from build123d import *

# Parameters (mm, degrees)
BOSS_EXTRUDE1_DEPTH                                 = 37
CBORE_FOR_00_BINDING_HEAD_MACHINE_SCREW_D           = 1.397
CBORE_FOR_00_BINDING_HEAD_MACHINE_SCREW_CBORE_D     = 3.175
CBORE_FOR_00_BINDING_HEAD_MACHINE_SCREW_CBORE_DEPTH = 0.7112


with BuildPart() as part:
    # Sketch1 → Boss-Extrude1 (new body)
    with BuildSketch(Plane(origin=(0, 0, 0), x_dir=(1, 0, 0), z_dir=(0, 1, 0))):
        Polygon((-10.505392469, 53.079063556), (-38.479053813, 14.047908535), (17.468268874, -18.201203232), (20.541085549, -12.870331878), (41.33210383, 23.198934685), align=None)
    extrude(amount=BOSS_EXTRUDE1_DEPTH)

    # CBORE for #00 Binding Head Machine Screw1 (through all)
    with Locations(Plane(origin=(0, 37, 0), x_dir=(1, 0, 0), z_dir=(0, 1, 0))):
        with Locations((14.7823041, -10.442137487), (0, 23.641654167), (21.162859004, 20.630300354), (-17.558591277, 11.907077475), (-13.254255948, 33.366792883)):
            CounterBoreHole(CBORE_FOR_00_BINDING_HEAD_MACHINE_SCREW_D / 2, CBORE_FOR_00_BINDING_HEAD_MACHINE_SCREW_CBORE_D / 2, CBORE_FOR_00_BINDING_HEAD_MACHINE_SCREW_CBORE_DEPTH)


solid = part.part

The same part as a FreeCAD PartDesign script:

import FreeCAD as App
import Part
import Sketcher
from FreeCAD import Vector

doc = App.newDocument("Part")
params = doc.addObject("Spreadsheet::Sheet", "Params")
for row, (alias, value) in enumerate([
    ("pad1_length", "37 mm"),
    ("hole_diameter", "1.397 mm"),
    ("hole_cbore_diameter", "3.175 mm"),
    ("hole_cbore_depth", "0.7112 mm"),
], start=1):
    params.set(f"A{row}", alias)
    params.set(f"B{row}", "=" + value)
    params.setAlias(f"B{row}", alias)

body = doc.addObject("PartDesign::Body", "Body")

# Sketch on XZ plane
sketch1 = doc.addObject("Sketcher::SketchObject", "Sketch")
body.addObject(sketch1)
sketch1.AttachmentSupport = (doc.XZ_Plane, [""])
sketch1.MapMode = "FlatFace"
sketch1.addGeometry([
    Part.LineSegment(Vector(-10.505392, -53.079064, 0), Vector(-38.479054, -14.047909, 0)),  # 0
    Part.LineSegment(Vector(-38.479054, -14.047909, 0), Vector(17.468269, 18.201203, 0)),  # 1
    Part.LineSegment(Vector(17.468269, 18.201203, 0), Vector(20.541086, 12.870332, 0)),  # 2
    Part.LineSegment(Vector(20.541086, 12.870332, 0), Vector(41.332104, -23.198935, 0)),  # 3
    Part.LineSegment(Vector(41.332104, -23.198935, 0), Vector(-10.505392, -53.079064, 0)),  # 4
], False)
sketch1.addConstraint([
    Sketcher.Constraint("Coincident", 0, 2, 1, 1),
    Sketcher.Constraint("Coincident", 1, 2, 2, 1),
    Sketcher.Constraint("Coincident", 2, 2, 3, 1),
    Sketcher.Constraint("Coincident", 3, 2, 4, 1),
    Sketcher.Constraint("Coincident", 4, 2, 0, 1),
    Sketcher.Constraint("Distance", 0, 48.020379),
    Sketcher.Constraint("Distance", 2, 6.15308),
    Sketcher.Constraint("Distance", 3, 41.63242),
    Sketcher.Constraint("DistanceY", 0, 2, -1, 1, 14.047909),
    Sketcher.Constraint("DistanceX", -1, 1, 1, 2, 17.468269),
    Sketcher.Constraint("DistanceY", -1, 1, 2, 2, 12.870332),
    Sketcher.Constraint("DistanceY", 0, 2, 1, 2, 32.249112),
    Sketcher.Constraint("DistanceX", 0, 2, 2, 2, 59.020139),
    Sketcher.Constraint("DistanceX", 2, 2, 3, 2, 20.791018),
    Sketcher.Constraint("DistanceX", 0, 2, 4, 2, 27.973661),
])
pad1 = doc.addObject("PartDesign::Pad", "Pad")
body.addObject(pad1)
pad1.Profile = sketch1
pad1.setExpression("Length", "Params.pad1_length")
pad1.Reversed = True

# Sketch on XZ plane
sketch2 = doc.addObject("Sketcher::SketchObject", "Sketch001")
body.addObject(sketch2)
sketch2.AttachmentSupport = (doc.XZ_Plane, [""])
sketch2.MapMode = "FlatFace"
sketch2.AttachmentOffset = App.Placement(Vector(0, 0, -37), App.Rotation())
sketch2.addGeometry([
    Part.Circle(Vector(14.8, 10.4, 0), Vector(0, 0, 1), 0.7),  # 0
    Part.Circle(Vector(0, -23.6, 0), Vector(0, 0, 1), 0.7),  # 1
    Part.Circle(Vector(21.2, -20.6, 0), Vector(0, 0, 1), 0.7),  # 2
    Part.Circle(Vector(-17.6, -11.9, 0), Vector(0, 0, 1), 0.7),  # 3
    Part.Circle(Vector(-13.3, -33.4, 0), Vector(0, 0, 1), 0.7),  # 4
], False)
sketch2.addConstraint([
    Sketcher.Constraint("Equal", 0, 1),
    Sketcher.Constraint("Equal", 1, 2),
    Sketcher.Constraint("Equal", 2, 3),
    Sketcher.Constraint("Equal", 3, 4),
    Sketcher.Constraint("PointOnObject", 1, 3, -2),
    Sketcher.Constraint("Diameter", 0, 1.397),
    Sketcher.Constraint("DistanceY", 2, 3, -1, 1, 20.6303),
    Sketcher.Constraint("DistanceX", -1, 1, 2, 3, 21.162859),
    Sketcher.Constraint("DistanceX", 3, 3, -1, 1, 17.558591),
    Sketcher.Constraint("DistanceY", 1, 3, 0, 3, 34.083792),
    Sketcher.Constraint("DistanceY", 4, 3, 1, 3, 9.725139),
    Sketcher.Constraint("DistanceX", 4, 3, 0, 3, 28.03656),
    Sketcher.Constraint("DistanceX", -1, 1, 0, 3, 14.782304),
    Sketcher.Constraint("DistanceY", -1, 1, 0, 3, 10.442137),
    Sketcher.Constraint("DistanceY", 3, 3, -1, 1, 11.907077),
])
doc.recompute()
hole = doc.addObject("PartDesign::Hole", "Hole")
body.addObject(hole)
hole.Profile = sketch2
hole.ThreadType = "None"
hole.setExpression("Diameter", "Params.hole_diameter")
hole.DepthType = "ThroughAll"
hole.HoleCutType = "Counterbore"
hole.setExpression("HoleCutDiameter", "Params.hole_cbore_diameter")
hole.setExpression("HoleCutDepth", "Params.hole_cbore_depth")
hole.Reversed = True

doc.recompute()
